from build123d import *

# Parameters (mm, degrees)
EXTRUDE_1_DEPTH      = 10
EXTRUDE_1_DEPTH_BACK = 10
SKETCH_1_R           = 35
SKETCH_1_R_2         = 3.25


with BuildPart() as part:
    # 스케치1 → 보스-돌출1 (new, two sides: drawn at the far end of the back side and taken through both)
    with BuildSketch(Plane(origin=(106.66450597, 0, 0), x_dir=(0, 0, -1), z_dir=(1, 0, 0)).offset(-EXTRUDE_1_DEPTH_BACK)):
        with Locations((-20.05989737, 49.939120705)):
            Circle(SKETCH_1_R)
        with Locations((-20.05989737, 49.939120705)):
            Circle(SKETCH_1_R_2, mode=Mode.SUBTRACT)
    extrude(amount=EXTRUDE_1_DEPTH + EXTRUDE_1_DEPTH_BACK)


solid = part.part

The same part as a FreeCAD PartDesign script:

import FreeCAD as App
import Part
import Sketcher

V = App.Vector
Q = App.Units.Quantity

doc = App.newDocument("Part")
body = doc.addObject("PartDesign::Body", "Body")

# Sketch on YZ plane
sketch1 = doc.addObject("Sketcher::SketchObject", "Sketch")
body.addObject(sketch1)
sketch1.AttachmentSupport = (doc.YZ_Plane, [""])
sketch1.MapMode = "FlatFace"
sketch1.AttachmentOffset = App.Placement(V(0, 0, 106.664506), App.Rotation())
sketch1.addGeometry([
    Part.Circle(V(49.939121, 20.059897, 0), V(0, 0, 1), 35),
    Part.Circle(V(49.939121, 20.059897, 0), V(0, 0, 1), 3.25),
], False)
sketch1.addConstraint([
    Sketcher.Constraint("Coincident", 1, 3, 0, 3),
    Sketcher.Constraint("Diameter", 0, Q("70 mm")),
    Sketcher.Constraint("Diameter", 1, Q("6.5 mm")),
    Sketcher.Constraint("DistanceX", -1, 1, 0, 3, Q("49.939121 mm")),
    Sketcher.Constraint("DistanceY", -1, 1, 0, 3, Q("20.059897 mm")),
])
pad1 = doc.addObject("PartDesign::Pad", "Pad")
body.addObject(pad1)
pad1.Profile = sketch1
pad1.Type = "TwoLengths"
pad1.Length = 10
pad1.Length2 = 10

doc.recompute()
